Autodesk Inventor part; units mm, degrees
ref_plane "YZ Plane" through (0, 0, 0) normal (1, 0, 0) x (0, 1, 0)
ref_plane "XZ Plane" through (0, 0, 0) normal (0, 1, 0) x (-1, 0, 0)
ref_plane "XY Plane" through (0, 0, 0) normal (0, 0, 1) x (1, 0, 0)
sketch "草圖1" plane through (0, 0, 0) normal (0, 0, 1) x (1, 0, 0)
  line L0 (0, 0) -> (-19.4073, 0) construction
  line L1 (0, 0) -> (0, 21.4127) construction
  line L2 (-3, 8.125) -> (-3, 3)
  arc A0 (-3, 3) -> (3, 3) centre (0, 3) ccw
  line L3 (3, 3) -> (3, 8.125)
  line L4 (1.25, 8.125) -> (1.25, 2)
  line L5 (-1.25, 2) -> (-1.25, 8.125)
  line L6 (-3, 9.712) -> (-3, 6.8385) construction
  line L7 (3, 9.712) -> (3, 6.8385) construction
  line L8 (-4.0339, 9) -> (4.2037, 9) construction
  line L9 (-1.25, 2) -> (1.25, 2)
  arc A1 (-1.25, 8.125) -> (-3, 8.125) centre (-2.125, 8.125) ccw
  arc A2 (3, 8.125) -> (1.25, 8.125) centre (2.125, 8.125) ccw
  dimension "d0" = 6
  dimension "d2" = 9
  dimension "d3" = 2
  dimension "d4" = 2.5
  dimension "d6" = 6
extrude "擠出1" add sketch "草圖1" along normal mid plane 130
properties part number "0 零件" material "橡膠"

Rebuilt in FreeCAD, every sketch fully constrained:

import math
import FreeCAD as App
import Part
import Sketcher

V = App.Vector
Q = App.Units.Quantity

doc = App.newDocument("Part")
body = doc.addObject("PartDesign::Body", "Body")

sketch1 = body.newObject("Sketcher::SketchObject", "Sketch")
sketch1.AttachmentSupport = (doc.getObject("XY_Plane"), [""])
sketch1.MapMode = "FlatFace"
sketch1.addGeometry([
    Part.ArcOfCircle(Part.Circle(V(-2.1, 8.1, 0), V(0, 0, 1), 0.9), math.radians(0), math.radians(180)),
    Part.LineSegment(V(-3, 8.1, 0), V(-3, 3, 0)),
    Part.ArcOfCircle(Part.Circle(V(0, 3, 0), V(0, 0, 1), 3), math.radians(180), math.radians(360)),
    Part.LineSegment(V(3, 3, 0), V(3, 8.1, 0)),
    Part.ArcOfCircle(Part.Circle(V(2.1, 8.1, 0), V(0, 0, 1), 0.9), math.radians(0), math.radians(180)),
    Part.LineSegment(V(1.2, 8.1, 0), V(1.2, 2, 0)),
    Part.LineSegment(V(1.2, 2, 0), V(-1.2, 2, 0)),
    Part.LineSegment(V(-1.2, 2, 0), V(-1.2, 8.1, 0)),
], False)
sketch1.addConstraint([
    Sketcher.Constraint("Tangent", 0, 2, 1, 1),
    Sketcher.Constraint("Tangent", 1, 2, 2, 1),
    Sketcher.Constraint("Tangent", 2, 2, 3, 1),
    Sketcher.Constraint("Tangent", 3, 2, 4, 1),
    Sketcher.Constraint("Tangent", 4, 2, 5, 1),
    Sketcher.Constraint("Coincident", 5, 2, 6, 1),
    Sketcher.Constraint("Coincident", 6, 2, 7, 1),
    Sketcher.Constraint("Tangent", 7, 2, 0, 1),
    Sketcher.Constraint("Vertical", 1),
    Sketcher.Constraint("Vertical", 3),
    Sketcher.Constraint("Vertical", 5),
    Sketcher.Constraint("Horizontal", 6),
    Sketcher.Constraint("Vertical", 7),
    Sketcher.Constraint("Equal", 0, 4),
    Sketcher.Constraint("Symmetric", 0, 3, 4, 3, -2),
    Sketcher.Constraint("Radius", 2, Q("3 mm")),
    Sketcher.Constraint("DistanceX", 6, 2, 6, 1, Q("2.5 mm")),
    Sketcher.Constraint("DistanceY", -1, 1, 5, 2, Q("2 mm")),
    Sketcher.Constraint("DistanceY", -1, 1, 2, 3, Q("3 mm")),
    Sketcher.Constraint("DistanceY", 1, 2, 1, 1, Q("5.125 mm")),
])
pad1 = body.newObject("PartDesign::Pad", "Pad")
pad1.Profile = sketch1
pad1.Length = 130
pad1.Midplane = True

doc.recompute()
